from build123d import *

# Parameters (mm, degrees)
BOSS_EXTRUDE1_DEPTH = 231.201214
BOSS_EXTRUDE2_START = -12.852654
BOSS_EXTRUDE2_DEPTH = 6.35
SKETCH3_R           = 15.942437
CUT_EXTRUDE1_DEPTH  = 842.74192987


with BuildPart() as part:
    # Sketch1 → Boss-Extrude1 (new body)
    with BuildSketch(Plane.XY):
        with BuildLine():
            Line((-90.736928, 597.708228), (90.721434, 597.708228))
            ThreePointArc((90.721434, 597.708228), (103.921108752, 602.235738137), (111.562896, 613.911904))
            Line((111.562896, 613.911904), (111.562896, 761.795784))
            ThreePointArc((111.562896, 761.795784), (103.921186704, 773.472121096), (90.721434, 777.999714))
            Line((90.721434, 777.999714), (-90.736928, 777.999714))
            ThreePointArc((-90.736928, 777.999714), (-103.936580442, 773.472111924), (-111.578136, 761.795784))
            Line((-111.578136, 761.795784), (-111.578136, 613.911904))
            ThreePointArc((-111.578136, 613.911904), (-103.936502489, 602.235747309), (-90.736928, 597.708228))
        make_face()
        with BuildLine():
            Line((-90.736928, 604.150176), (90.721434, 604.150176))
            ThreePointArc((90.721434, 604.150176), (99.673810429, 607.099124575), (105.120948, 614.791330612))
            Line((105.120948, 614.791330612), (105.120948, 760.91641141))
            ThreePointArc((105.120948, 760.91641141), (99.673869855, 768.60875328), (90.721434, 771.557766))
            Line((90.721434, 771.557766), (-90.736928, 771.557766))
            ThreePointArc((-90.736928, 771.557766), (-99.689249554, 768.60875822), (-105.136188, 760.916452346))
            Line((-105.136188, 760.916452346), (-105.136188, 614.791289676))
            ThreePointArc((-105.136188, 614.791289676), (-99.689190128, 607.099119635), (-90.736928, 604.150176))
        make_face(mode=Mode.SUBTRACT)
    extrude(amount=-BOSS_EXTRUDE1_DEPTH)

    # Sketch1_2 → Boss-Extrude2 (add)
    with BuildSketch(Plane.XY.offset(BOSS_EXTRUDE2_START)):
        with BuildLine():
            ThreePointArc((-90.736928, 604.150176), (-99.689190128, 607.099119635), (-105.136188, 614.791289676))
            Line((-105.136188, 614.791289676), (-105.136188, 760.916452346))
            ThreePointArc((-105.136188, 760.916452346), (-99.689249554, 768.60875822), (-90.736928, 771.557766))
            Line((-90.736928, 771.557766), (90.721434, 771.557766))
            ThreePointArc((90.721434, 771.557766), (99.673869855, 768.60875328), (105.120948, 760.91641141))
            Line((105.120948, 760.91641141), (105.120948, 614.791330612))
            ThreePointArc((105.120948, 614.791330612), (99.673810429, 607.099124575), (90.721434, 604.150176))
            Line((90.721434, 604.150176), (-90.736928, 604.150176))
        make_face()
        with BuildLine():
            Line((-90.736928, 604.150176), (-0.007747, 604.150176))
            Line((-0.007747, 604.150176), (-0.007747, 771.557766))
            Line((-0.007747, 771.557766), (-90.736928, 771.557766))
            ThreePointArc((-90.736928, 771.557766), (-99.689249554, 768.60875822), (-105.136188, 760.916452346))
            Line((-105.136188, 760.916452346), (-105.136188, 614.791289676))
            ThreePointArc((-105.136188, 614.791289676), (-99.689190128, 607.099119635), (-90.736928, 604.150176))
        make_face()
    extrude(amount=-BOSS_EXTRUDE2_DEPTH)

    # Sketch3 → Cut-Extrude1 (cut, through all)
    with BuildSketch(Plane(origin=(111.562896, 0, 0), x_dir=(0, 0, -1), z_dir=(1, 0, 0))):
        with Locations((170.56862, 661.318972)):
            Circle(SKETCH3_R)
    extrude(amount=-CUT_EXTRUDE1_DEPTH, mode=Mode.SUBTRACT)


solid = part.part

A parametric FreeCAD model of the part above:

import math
import FreeCAD as App
import Part
import Sketcher
from FreeCAD import Vector
Q = App.Units.Quantity

doc = App.newDocument("Part")
body = doc.addObject("PartDesign::Body", "Body")

sketch1 = body.newObject("Sketcher::SketchObject", "Sketch")
sketch1.AttachmentSupport = (doc.getObject("XY_Plane"), [""])
sketch1.MapMode = "FlatFace"
sketch1.addGeometry([
    Part.LineSegment(Vector(-91, 598, 0), Vector(91, 598, 0)),
    Part.ArcOfCircle(Part.Circle(Vector(91, 619, 0), Vector(0, 0, 1), 22), math.radians(-90), math.radians(-14)),
    Part.LineSegment(Vector(112, 614, 0), Vector(112, 762, 0)),
    Part.ArcOfCircle(Part.Circle(Vector(91, 756, 0), Vector(0, 0, 1), 22), math.radians(14), math.radians(90)),
    Part.LineSegment(Vector(91, 778, 0), Vector(-91, 778, 0)),
    Part.ArcOfCircle(Part.Circle(Vector(-91, 756, 0), Vector(0, 0, 1), 22), math.radians(90), math.radians(166)),
    Part.LineSegment(Vector(-112, 762, 0), Vector(-112, 614, 0)),
    Part.ArcOfCircle(Part.Circle(Vector(-91, 619, 0), Vector(0, 0, 1), 22), math.radians(-166), math.radians(-90)),
    Part.LineSegment(Vector(91, 604, 0), Vector(-91, 604, 0)),
    Part.ArcOfCircle(Part.Circle(Vector(-91, 619, 0), Vector(0, 0, 1), 15), math.radians(-163), math.radians(-90)),
    Part.LineSegment(Vector(-105, 615, 0), Vector(-105, 761, 0)),
    Part.ArcOfCircle(Part.Circle(Vector(-91, 756, 0), Vector(0, 0, 1), 15), math.radians(90), math.radians(163)),
    Part.LineSegment(Vector(-91, 772, 0), Vector(91, 772, 0)),
    Part.ArcOfCircle(Part.Circle(Vector(91, 756, 0), Vector(0, 0, 1), 15), math.radians(17), math.radians(90)),
    Part.LineSegment(Vector(105, 761, 0), Vector(105, 615, 0)),
    Part.ArcOfCircle(Part.Circle(Vector(91, 619, 0), Vector(0, 0, 1), 15), math.radians(-90), math.radians(-17)),
], False)
sketch1.addConstraint([
    Sketcher.Constraint("Tangent", 0, 2, 1, 1),
    Sketcher.Constraint("Coincident", 1, 2, 2, 1),
    Sketcher.Constraint("Coincident", 2, 2, 3, 1),
    Sketcher.Constraint("Tangent", 3, 2, 4, 1),
    Sketcher.Constraint("Tangent", 4, 2, 5, 1),
    Sketcher.Constraint("Coincident", 5, 2, 6, 1),
    Sketcher.Constraint("Coincident", 6, 2, 7, 1),
    Sketcher.Constraint("Tangent", 7, 2, 0, 1),
    Sketcher.Constraint("Tangent", 8, 2, 9, 2),
    Sketcher.Constraint("Coincident", 9, 1, 10, 1),
    Sketcher.Constraint("Coincident", 10, 2, 11, 2),
    Sketcher.Constraint("Tangent", 11, 1, 12, 1),
    Sketcher.Constraint("Tangent", 12, 2, 13, 2),
    Sketcher.Constraint("Coincident", 13, 1, 14, 1),
    Sketcher.Constraint("Coincident", 14, 2, 15, 2),
    Sketcher.Constraint("Tangent", 15, 1, 8, 1),
    Sketcher.Constraint("Horizontal", 0),
    Sketcher.Constraint("Vertical", 2),
    Sketcher.Constraint("Horizontal", 4),
    Sketcher.Constraint("Vertical", 6),
    Sketcher.Constraint("Horizontal", 8),
    Sketcher.Constraint("Vertical", 10),
    Sketcher.Constraint("Horizontal", 12),
    Sketcher.Constraint("Vertical", 14),
    Sketcher.Constraint("Coincident", 9, 3, 7, 3),
    Sketcher.Constraint("Coincident", 11, 3, 5, 3),
    Sketcher.Constraint("Coincident", 13, 3, 3, 3),
    Sketcher.Constraint("Coincident", 15, 3, 1, 3),
    Sketcher.Constraint("Horizontal", 2, 2, 5, 2),
    Sketcher.Constraint("Horizontal", 1, 2, 6, 2),
    Sketcher.Constraint("Vertical", 1, 3, 3, 3),
    Sketcher.Constraint("Vertical", 5, 3, 7, 3),
    Sketcher.Constraint("DistanceY", 2, 1, 2, 2, Q("5.8222 in")),
    Sketcher.Constraint("Radius", 1, Q("21.505171 mm")),
    Sketcher.Constraint("Radius", 3, Q("21.505088 mm")),
    Sketcher.Constraint("Radius", 5, Q("21.504761 mm")),
    Sketcher.Constraint("Radius", 13, Q("15.06314 mm")),
    Sketcher.Constraint("Radius", 9, Q("15.062897 mm")),
    Sketcher.Constraint("DistanceX", 9, 1, 9, 3, Q("0.5669 in")),
    Sketcher.Constraint("DistanceY", 14, 2, 14, 1, Q("146.125081 mm")),
    Sketcher.Constraint("DistanceY", -1, 1, 1, 3, Q("619.213399 mm")),
    Sketcher.Constraint("DistanceX", 0, 1, 0, 2, Q("181.458362 mm")),
    Sketcher.Constraint("DistanceY", 10, 1, 10, 2, Q("146.125163 mm")),
    Sketcher.Constraint("DistanceX", 5, 3, -1, 1, Q("90.736928 mm")),
])
pad1 = body.newObject("PartDesign::Pad", "Pad")
pad1.Profile = sketch1
pad1.Length = 231.201214
pad1.Reversed = True

sketch2 = body.newObject("Sketcher::SketchObject", "Sketch001")
sketch2.AttachmentSupport = (doc.getObject("XY_Plane"), [""])
sketch2.MapMode = "FlatFace"
sketch2.AttachmentOffset = App.Placement(Vector(0, 0, -12.852654), App.Rotation())
sketch2.addGeometry([
    Part.LineSegment(Vector(-91, 604, 0), Vector(91, 604, 0)),
    Part.ArcOfCircle(Part.Circle(Vector(91, 619, 0), Vector(0, 0, 1), 15), math.radians(-90), math.radians(-17)),
    Part.LineSegment(Vector(105, 615, 0), Vector(105, 761, 0)),
    Part.ArcOfCircle(Part.Circle(Vector(91, 756, 0), Vector(0, 0, 1), 15), math.radians(17), math.radians(90)),
    Part.LineSegment(Vector(91, 772, 0), Vector(-91, 772, 0)),
    Part.ArcOfCircle(Part.Circle(Vector(-91, 756, 0), Vector(0, 0, 1), 15), math.radians(90), math.radians(163)),
    Part.LineSegment(Vector(-105, 761, 0), Vector(-105, 615, 0)),
    Part.ArcOfCircle(Part.Circle(Vector(-91, 619, 0), Vector(0, 0, 1), 15), math.radians(-163), math.radians(-90)),
], False)
sketch2.addConstraint([
    Sketcher.Constraint("Tangent", 0, 2, 1, 1),
    Sketcher.Constraint("Coincident", 1, 2, 2, 1),
    Sketcher.Constraint("Coincident", 2, 2, 3, 1),
    Sketcher.Constraint("Tangent", 3, 2, 4, 1),
    Sketcher.Constraint("Tangent", 4, 2, 5, 1),
    Sketcher.Constraint("Coincident", 5, 2, 6, 1),
    Sketcher.Constraint("Coincident", 6, 2, 7, 1),
    Sketcher.Constraint("Tangent", 7, 2, 0, 1),
    Sketcher.Constraint("Horizontal", 0),
    Sketcher.Constraint("Vertical", 2),
    Sketcher.Constraint("Horizontal", 4),
    Sketcher.Constraint("Vertical", 6),
    Sketcher.Constraint("Vertical", 1, 3, 3, 3),
    Sketcher.Constraint("Vertical", 5, 3, 7, 3),
    Sketcher.Constraint("Radius", 3, Q("15.06314 mm")),
    Sketcher.Constraint("Radius", 1, Q("15.063223 mm")),
    Sketcher.Constraint("Radius", 5, Q("15.062813 mm")),
    Sketcher.Constraint("Radius", 7, Q("15.062897 mm")),
    Sketcher.Constraint("DistanceX", 5, 2, 5, 3, Q("0.5669 in")),
    Sketcher.Constraint("DistanceY", 2, 1, 2, 2, Q("146.125081 mm")),
    Sketcher.Constraint("DistanceY", -1, 1, 1, 3, Q("619.213399 mm")),
    Sketcher.Constraint("DistanceX", 0, 1, 0, 2, Q("181.458362 mm")),
    Sketcher.Constraint("DistanceY", 6, 2, 6, 1, Q("146.125163 mm")),
    Sketcher.Constraint("DistanceX", 5, 3, -1, 1, Q("90.736928 mm")),
])
pad2 = body.newObject("PartDesign::Pad", "Pad001")
pad2.Profile = sketch2
pad2.Length = Q("0.25 in")
pad2.Reversed = True

sketch3 = body.newObject("Sketcher::SketchObject", "Sketch002")
sketch3.AttachmentSupport = (doc.getObject("YZ_Plane"), [""])
sketch3.MapMode = "FlatFace"
sketch3.AttachmentOffset = App.Placement(Vector(0, 0, 111.562896), App.Rotation())
sketch3.addGeometry(Part.Circle(Vector(661, -171, 0), Vector(0, 0, 1), 16), False)
sketch3.addConstraint([
    Sketcher.Constraint("Diameter", 0, Q("31.884874 mm")),
    Sketcher.Constraint("DistanceY", 0, 3, -1, 1, Q("6.7153 in")),
    Sketcher.Constraint("DistanceX", -1, 1, 0, 3, Q("661.318972 mm")),
])
pocket1 = body.newObject("PartDesign::Pocket", "Pocket")
pocket1.Profile = sketch3
pocket1.Type = "ThroughAll"

doc.recompute()
